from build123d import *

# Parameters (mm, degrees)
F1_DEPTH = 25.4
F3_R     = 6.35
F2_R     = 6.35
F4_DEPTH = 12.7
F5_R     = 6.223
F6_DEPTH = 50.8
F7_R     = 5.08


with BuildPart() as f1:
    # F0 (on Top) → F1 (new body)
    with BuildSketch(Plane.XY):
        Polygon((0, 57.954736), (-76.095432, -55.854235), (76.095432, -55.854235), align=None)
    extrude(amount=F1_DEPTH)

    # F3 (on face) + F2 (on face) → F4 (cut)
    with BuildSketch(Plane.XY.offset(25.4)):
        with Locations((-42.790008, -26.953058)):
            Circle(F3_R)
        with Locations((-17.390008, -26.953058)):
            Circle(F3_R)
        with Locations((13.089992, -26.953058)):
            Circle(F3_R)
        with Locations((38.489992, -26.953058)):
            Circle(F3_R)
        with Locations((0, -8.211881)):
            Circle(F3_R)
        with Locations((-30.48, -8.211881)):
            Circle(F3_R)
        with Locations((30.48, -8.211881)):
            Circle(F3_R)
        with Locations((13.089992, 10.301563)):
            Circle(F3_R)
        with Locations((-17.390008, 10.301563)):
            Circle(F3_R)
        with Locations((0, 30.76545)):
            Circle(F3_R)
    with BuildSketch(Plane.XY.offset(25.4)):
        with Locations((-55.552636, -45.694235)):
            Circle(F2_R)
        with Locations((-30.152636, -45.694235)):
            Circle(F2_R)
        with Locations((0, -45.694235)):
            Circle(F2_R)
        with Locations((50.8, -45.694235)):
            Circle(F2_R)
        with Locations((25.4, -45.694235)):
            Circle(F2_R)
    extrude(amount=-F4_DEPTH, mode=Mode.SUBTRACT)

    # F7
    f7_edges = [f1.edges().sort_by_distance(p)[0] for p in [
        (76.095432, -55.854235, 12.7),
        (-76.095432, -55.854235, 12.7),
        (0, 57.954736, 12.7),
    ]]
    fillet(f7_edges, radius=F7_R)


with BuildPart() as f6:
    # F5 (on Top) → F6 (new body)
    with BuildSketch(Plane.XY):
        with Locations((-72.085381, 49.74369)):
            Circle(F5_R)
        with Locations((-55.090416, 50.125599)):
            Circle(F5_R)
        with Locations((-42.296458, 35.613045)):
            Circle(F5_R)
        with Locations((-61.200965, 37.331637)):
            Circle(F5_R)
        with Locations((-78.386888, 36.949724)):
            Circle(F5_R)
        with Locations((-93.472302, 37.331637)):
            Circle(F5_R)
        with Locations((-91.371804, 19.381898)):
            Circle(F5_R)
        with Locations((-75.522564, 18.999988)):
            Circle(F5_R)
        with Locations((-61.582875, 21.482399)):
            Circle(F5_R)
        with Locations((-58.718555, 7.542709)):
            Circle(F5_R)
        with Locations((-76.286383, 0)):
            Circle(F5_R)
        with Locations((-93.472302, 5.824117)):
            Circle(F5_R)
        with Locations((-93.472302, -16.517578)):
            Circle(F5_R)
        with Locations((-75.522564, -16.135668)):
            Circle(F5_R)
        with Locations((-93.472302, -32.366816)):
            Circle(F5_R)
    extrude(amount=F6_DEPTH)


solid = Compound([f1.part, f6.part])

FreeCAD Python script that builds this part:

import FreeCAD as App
import Part
import Sketcher
from FreeCAD import Vector
Q = App.Units.Quantity


def edges_at(feature, points):
    """Names of the edges that pass closest to the given points."""
    edges = feature.Shape.Edges
    near = lambda p: min(range(len(edges)), key=lambda i: edges[i].distToShape(Part.Vertex(*p))[0])
    return sorted({f"Edge{near(p) + 1}" for p in points})

doc = App.newDocument("Part")
body = doc.addObject("PartDesign::Body", "Body")

# Sketch on XY plane
sketch1 = body.newObject("Sketcher::SketchObject", "Sketch")
sketch1.AttachmentSupport = (doc.getObject("XY_Plane"), [""])
sketch1.MapMode = "FlatFace"
sketch1.addGeometry(Part.LineSegment(Vector(0, 57.954736, 0), Vector(-76.095432, -55.854235, 0)), False)
sketch1.addGeometry(Part.LineSegment(Vector(-76.095432, -55.854235, 0), Vector(76.095432, -55.854235, 0)), False)
sketch1.addGeometry(Part.LineSegment(Vector(76.095432, -55.854235, 0), Vector(0, 57.954736, 0)), False)
sketch1.addConstraint(Sketcher.Constraint("Coincident", 0, 2, 1, 1))
sketch1.addConstraint(Sketcher.Constraint("Coincident", 1, 2, 2, 1))
sketch1.addConstraint(Sketcher.Constraint("Coincident", 2, 2, 0, 1))
sketch1.addConstraint(Sketcher.Constraint("Horizontal", 1))
sketch1.addConstraint(Sketcher.Constraint("PointOnObject", 2, 2, -2))
sketch1.addConstraint(Sketcher.Constraint("Equal", 0, 2))
sketch1.addConstraint(Sketcher.Constraint("DistanceX", 1, 1, 1, 2, 152.190864))
sketch1.addConstraint(Sketcher.Constraint("DistanceY", 0, 2, 2, 2, 113.808971))
sketch1.addConstraint(Sketcher.Constraint("DistanceY", 0, 2, -1, 1, 55.854235))
pad1 = body.newObject("PartDesign::Pad", "Pad")
pad1.Profile = sketch1
pad1.Length = Q("1 in")

# Sketch on XY plane
sketch2 = body.newObject("Sketcher::SketchObject", "Sketch001")
sketch2.AttachmentSupport = (doc.getObject("XY_Plane"), [""])
sketch2.MapMode = "FlatFace"
sketch2.AttachmentOffset = App.Placement(Vector(0, 0, 1 * 25.4), App.Rotation())
sketch2.addGeometry(Part.Circle(Vector(-42.790008, -26.953058, 0), Vector(0, 0, 1), 6.35), False)
sketch2.addGeometry(Part.Circle(Vector(-17.390008, -26.953058, 0), Vector(0, 0, 1), 6.35), False)
sketch2.addGeometry(Part.Circle(Vector(13.089992, -26.953058, 0), Vector(0, 0, 1), 6.35), False)
sketch2.addGeometry(Part.Circle(Vector(38.489992, -26.953058, 0), Vector(0, 0, 1), 6.35), False)
sketch2.addGeometry(Part.Circle(Vector(0, -8.211881, 0), Vector(0, 0, 1), 6.35), False)
sketch2.addGeometry(Part.Circle(Vector(-30.48, -8.211881, 0), Vector(0, 0, 1), 6.35), False)
sketch2.addGeometry(Part.Circle(Vector(30.48, -8.211881, 0), Vector(0, 0, 1), 6.35), False)
sketch2.addGeometry(Part.Circle(Vector(13.089992, 10.301563, 0), Vector(0, 0, 1), 6.35), False)
sketch2.addGeometry(Part.Circle(Vector(-17.390008, 10.301563, 0), Vector(0, 0, 1), 6.35), False)
sketch2.addGeometry(Part.Circle(Vector(0, 30.76545, 0), Vector(0, 0, 1), 6.35), False)
sketch2.addGeometry(Part.Circle(Vector(-55.552636, -45.694235, 0), Vector(0, 0, 1), 6.35), False)
sketch2.addGeometry(Part.Circle(Vector(-30.152636, -45.694235, 0), Vector(0, 0, 1), 6.35), False)
sketch2.addGeometry(Part.Circle(Vector(0, -45.694235, 0), Vector(0, 0, 1), 6.35), False)
sketch2.addGeometry(Part.Circle(Vector(50.8, -45.694235, 0), Vector(0, 0, 1), 6.35), False)
sketch2.addGeometry(Part.Circle(Vector(25.4, -45.694235, 0), Vector(0, 0, 1), 6.35), False)
sketch2.addConstraint(Sketcher.Constraint("Equal", 0, 1))
sketch2.addConstraint(Sketcher.Constraint("Equal", 1, 2))
sketch2.addConstraint(Sketcher.Constraint("Equal", 2, 3))
sketch2.addConstraint(Sketcher.Constraint("Equal", 3, 4))
sketch2.addConstraint(Sketcher.Constraint("Equal", 4, 5))
sketch2.addConstraint(Sketcher.Constraint("Equal", 5, 6))
sketch2.addConstraint(Sketcher.Constraint("Equal", 6, 7))
sketch2.addConstraint(Sketcher.Constraint("Equal", 7, 8))
sketch2.addConstraint(Sketcher.Constraint("Equal", 8, 9))
sketch2.addConstraint(Sketcher.Constraint("Equal", 9, 10))
sketch2.addConstraint(Sketcher.Constraint("Equal", 10, 11))
sketch2.addConstraint(Sketcher.Constraint("Equal", 11, 12))
sketch2.addConstraint(Sketcher.Constraint("Equal", 12, 13))
sketch2.addConstraint(Sketcher.Constraint("Equal", 13, 14))
sketch2.addConstraint(Sketcher.Constraint("Symmetric", 5, 3, 6, 3, -2))
sketch2.addConstraint(Sketcher.Constraint("PointOnObject", 4, 3, -2))
sketch2.addConstraint(Sketcher.Constraint("PointOnObject", 9, 3, -2))
sketch2.addConstraint(Sketcher.Constraint("PointOnObject", 12, 3, -2))
sketch2.addConstraint(Sketcher.Constraint("Horizontal", 0, 3, 1, 3))
sketch2.addConstraint(Sketcher.Constraint("Horizontal", 1, 3, 2, 3))
sketch2.addConstraint(Sketcher.Constraint("Horizontal", 2, 3, 3, 3))
sketch2.addConstraint(Sketcher.Constraint("Horizontal", 4, 3, 5, 3))
sketch2.addConstraint(Sketcher.Constraint("Horizontal", 7, 3, 8, 3))
sketch2.addConstraint(Sketcher.Constraint("Horizontal", 10, 3, 11, 3))
sketch2.addConstraint(Sketcher.Constraint("Horizontal", 11, 3, 12, 3))
sketch2.addConstraint(Sketcher.Constraint("Horizontal", 12, 3, 13, 3))
sketch2.addConstraint(Sketcher.Constraint("Horizontal", 13, 3, 14, 3))
sketch2.addConstraint(Sketcher.Constraint("Vertical", 2, 3, 7, 3))
sketch2.addConstraint(Sketcher.Constraint("Vertical", 1, 3, 8, 3))
sketch2.addConstraint(Sketcher.Constraint("Diameter", 0, Q("0.5 in")))
sketch2.addConstraint(Sketcher.Constraint("DistanceX", -1, 1, 13, 3, Q("2 in")))
sketch2.addConstraint(Sketcher.Constraint("DistanceX", -1, 1, 14, 3, Q("1 in")))
sketch2.addConstraint(Sketcher.Constraint("DistanceX", 0, 3, 1, 3, Q("1 in")))
sketch2.addConstraint(Sketcher.Constraint("DistanceX", 2, 3, 3, 3, Q("1 in")))
sketch2.addConstraint(Sketcher.Constraint("DistanceX", 10, 3, 11, 3, Q("1 in")))
sketch2.addConstraint(Sketcher.Constraint("DistanceX", 5, 3, -1, 1, Q("1.2 in")))
sketch2.addConstraint(Sketcher.Constraint("DistanceX", 1, 3, 2, 3, Q("1.2 in")))
sketch2.addConstraint(Sketcher.Constraint("DistanceX", 1, 3, -1, 1, 17.390008))
sketch2.addConstraint(Sketcher.Constraint("DistanceY", 4, 3, -1, 1, 8.211881))
sketch2.addConstraint(Sketcher.Constraint("DistanceY", -1, 1, 9, 3, 30.76545))
sketch2.addConstraint(Sketcher.Constraint("DistanceY", 2, 3, 7, 3, 37.254621))
sketch2.addConstraint(Sketcher.Constraint("DistanceX", 0, 3, 11, 3, 12.637372))
sketch2.addConstraint(Sketcher.Constraint("DistanceY", 0, 3, -1, 1, 26.953058))
sketch2.addConstraint(Sketcher.Constraint("DistanceY", 10, 3, -1, 1, 45.694235))
pocket1 = body.newObject("PartDesign::Pocket", "Pocket")
pocket1.Profile = sketch2
pocket1.Length = Q("0.5 in")
doc.recompute()

fillet = body.newObject("PartDesign::Fillet", "Fillet")
fillet.Base = (pocket1, edges_at(pocket1, [(76.095, -55.854, 12.7), (-76.095, -55.854, 12.7), (0, 57.955, 12.7)]))
fillet.Radius = Q("0.2 in")
body2 = doc.addObject("PartDesign::Body", "Body001")
body2.AllowCompound = True

# Sketch on XY plane
sketch3 = body2.newObject("Sketcher::SketchObject", "Sketch002")
sketch3.AttachmentSupport = (doc.getObject("XY_Plane001"), [""])
sketch3.MapMode = "FlatFace"
sketch3.addGeometry(Part.Circle(Vector(-72.085381, 49.74369, 0), Vector(0, 0, 1), 6.223), False)
sketch3.addGeometry(Part.Circle(Vector(-55.090416, 50.125599, 0), Vector(0, 0, 1), 6.223), False)
sketch3.addGeometry(Part.Circle(Vector(-42.296458, 35.613045, 0), Vector(0, 0, 1), 6.223), False)
sketch3.addGeometry(Part.Circle(Vector(-61.200965, 37.331637, 0), Vector(0, 0, 1), 6.223), False)
sketch3.addGeometry(Part.Circle(Vector(-78.386888, 36.949724, 0), Vector(0, 0, 1), 6.223), False)
sketch3.addGeometry(Part.Circle(Vector(-93.472302, 37.331637, 0), Vector(0, 0, 1), 6.223), False)
sketch3.addGeometry(Part.Circle(Vector(-91.371804, 19.381898, 0), Vector(0, 0, 1), 6.223), False)
sketch3.addGeometry(Part.Circle(Vector(-75.522564, 18.999988, 0), Vector(0, 0, 1), 6.223), False)
sketch3.addGeometry(Part.Circle(Vector(-61.582875, 21.482399, 0), Vector(0, 0, 1), 6.223), False)
sketch3.addGeometry(Part.Circle(Vector(-58.718555, 7.542709, 0), Vector(0, 0, 1), 6.223), False)
sketch3.addGeometry(Part.Circle(Vector(-76.286383, 0, 0), Vector(0, 0, 1), 6.223), False)
sketch3.addGeometry(Part.Circle(Vector(-93.472302, 5.824117, 0), Vector(0, 0, 1), 6.223), False)
sketch3.addGeometry(Part.Circle(Vector(-93.472302, -16.517578, 0), Vector(0, 0, 1), 6.223), False)
sketch3.addGeometry(Part.Circle(Vector(-75.522564, -16.135668, 0), Vector(0, 0, 1), 6.223), False)
sketch3.addGeometry(Part.Circle(Vector(-93.472302, -32.366816, 0), Vector(0, 0, 1), 6.223), False)
sketch3.addConstraint(Sketcher.Constraint("Equal", 0, 1))
sketch3.addConstraint(Sketcher.Constraint("Equal", 1, 2))
sketch3.addConstraint(Sketcher.Constraint("Equal", 2, 3))
sketch3.addConstraint(Sketcher.Constraint("Equal", 3, 4))
sketch3.addConstraint(Sketcher.Constraint("Equal", 4, 5))
sketch3.addConstraint(Sketcher.Constraint("Equal", 5, 6))
sketch3.addConstraint(Sketcher.Constraint("Equal", 6, 7))
sketch3.addConstraint(Sketcher.Constraint("Equal", 7, 8))
sketch3.addConstraint(Sketcher.Constraint("Equal", 8, 9))
sketch3.addConstraint(Sketcher.Constraint("Equal", 9, 10))
sketch3.addConstraint(Sketcher.Constraint("Equal", 10, 11))
sketch3.addConstraint(Sketcher.Constraint("Equal", 11, 12))
sketch3.addConstraint(Sketcher.Constraint("Equal", 12, 13))
sketch3.addConstraint(Sketcher.Constraint("Equal", 13, 14))
sketch3.addConstraint(Sketcher.Constraint("PointOnObject", 10, 3, -1))
sketch3.addConstraint(Sketcher.Constraint("Horizontal", 3, 3, 5, 3))
sketch3.addConstraint(Sketcher.Constraint("Vertical", 5, 3, 11, 3))
sketch3.addConstraint(Sketcher.Constraint("Vertical", 11, 3, 12, 3))
sketch3.addConstraint(Sketcher.Constraint("Vertical", 7, 3, 13, 3))
sketch3.addConstraint(Sketcher.Constraint("Vertical", 12, 3, 14, 3))
sketch3.addConstraint(Sketcher.Constraint("Diameter", 0, Q("0.49 in")))
sketch3.addConstraint(Sketcher.Constraint("DistanceY", -1, 1, 1, 3, 50.125599))
sketch3.addConstraint(Sketcher.Constraint("DistanceX", 5, 3, -1, 1, 93.472302))
sketch3.addConstraint(Sketcher.Constraint("DistanceY", -1, 1, 8, 3, 21.482399))
sketch3.addConstraint(Sketcher.Constraint("DistanceX", 5, 3, 6, 3, 2.100498))
sketch3.addConstraint(Sketcher.Constraint("DistanceY", 6, 3, 1, 3, 30.743701))
sketch3.addConstraint(Sketcher.Constraint("DistanceX", 7, 3, 3, 3, 14.321599))
sketch3.addConstraint(Sketcher.Constraint("DistanceX", 0, 3, -1, 1, 72.085381))
sketch3.addConstraint(Sketcher.Constraint("DistanceY", -1, 1, 0, 3, 49.74369))
sketch3.addConstraint(Sketcher.Constraint("DistanceX", 4, 3, -1, 1, 78.386888))
sketch3.addConstraint(Sketcher.Constraint("DistanceY", -1, 1, 9, 3, 7.542709))
sketch3.addConstraint(Sketcher.Constraint("DistanceY", 12, 3, -1, 1, 16.517578))
sketch3.addConstraint(Sketcher.Constraint("DistanceX", 3, 3, 1, 3, 6.110549))
sketch3.addConstraint(Sketcher.Constraint("DistanceX", 4, 3, 2, 3, 36.09043))
sketch3.addConstraint(Sketcher.Constraint("DistanceY", 2, 3, 4, 3, 1.336679))
sketch3.addConstraint(Sketcher.Constraint("DistanceY", 6, 3, 5, 3, 17.949739))
sketch3.addConstraint(Sketcher.Constraint("DistanceX", 6, 3, 3, 3, 30.170839))
sketch3.addConstraint(Sketcher.Constraint("DistanceY", 7, 3, 6, 3, 0.38191))
sketch3.addConstraint(Sketcher.Constraint("DistanceX", 7, 3, 8, 3, 13.939689))
sketch3.addConstraint(Sketcher.Constraint("DistanceX", 8, 3, 9, 3, 2.86432))
sketch3.addConstraint(Sketcher.Constraint("DistanceX", 10, 3, 7, 3, 0.763819))
sketch3.addConstraint(Sketcher.Constraint("DistanceY", 11, 3, 6, 3, 13.557781))
sketch3.addConstraint(Sketcher.Constraint("DistanceY", 12, 3, 13, 3, 0.38191))
sketch3.addConstraint(Sketcher.Constraint("DistanceY", 14, 3, 13, 3, 16.231148))
sketch3.addConstraint(Sketcher.Constraint("DistanceY", -1, 1, 2, 3, 35.613045))
pad2 = body2.newObject("PartDesign::Pad", "Pad001")
pad2.Profile = sketch3
pad2.Length = Q("2 in")

doc.recompute()
